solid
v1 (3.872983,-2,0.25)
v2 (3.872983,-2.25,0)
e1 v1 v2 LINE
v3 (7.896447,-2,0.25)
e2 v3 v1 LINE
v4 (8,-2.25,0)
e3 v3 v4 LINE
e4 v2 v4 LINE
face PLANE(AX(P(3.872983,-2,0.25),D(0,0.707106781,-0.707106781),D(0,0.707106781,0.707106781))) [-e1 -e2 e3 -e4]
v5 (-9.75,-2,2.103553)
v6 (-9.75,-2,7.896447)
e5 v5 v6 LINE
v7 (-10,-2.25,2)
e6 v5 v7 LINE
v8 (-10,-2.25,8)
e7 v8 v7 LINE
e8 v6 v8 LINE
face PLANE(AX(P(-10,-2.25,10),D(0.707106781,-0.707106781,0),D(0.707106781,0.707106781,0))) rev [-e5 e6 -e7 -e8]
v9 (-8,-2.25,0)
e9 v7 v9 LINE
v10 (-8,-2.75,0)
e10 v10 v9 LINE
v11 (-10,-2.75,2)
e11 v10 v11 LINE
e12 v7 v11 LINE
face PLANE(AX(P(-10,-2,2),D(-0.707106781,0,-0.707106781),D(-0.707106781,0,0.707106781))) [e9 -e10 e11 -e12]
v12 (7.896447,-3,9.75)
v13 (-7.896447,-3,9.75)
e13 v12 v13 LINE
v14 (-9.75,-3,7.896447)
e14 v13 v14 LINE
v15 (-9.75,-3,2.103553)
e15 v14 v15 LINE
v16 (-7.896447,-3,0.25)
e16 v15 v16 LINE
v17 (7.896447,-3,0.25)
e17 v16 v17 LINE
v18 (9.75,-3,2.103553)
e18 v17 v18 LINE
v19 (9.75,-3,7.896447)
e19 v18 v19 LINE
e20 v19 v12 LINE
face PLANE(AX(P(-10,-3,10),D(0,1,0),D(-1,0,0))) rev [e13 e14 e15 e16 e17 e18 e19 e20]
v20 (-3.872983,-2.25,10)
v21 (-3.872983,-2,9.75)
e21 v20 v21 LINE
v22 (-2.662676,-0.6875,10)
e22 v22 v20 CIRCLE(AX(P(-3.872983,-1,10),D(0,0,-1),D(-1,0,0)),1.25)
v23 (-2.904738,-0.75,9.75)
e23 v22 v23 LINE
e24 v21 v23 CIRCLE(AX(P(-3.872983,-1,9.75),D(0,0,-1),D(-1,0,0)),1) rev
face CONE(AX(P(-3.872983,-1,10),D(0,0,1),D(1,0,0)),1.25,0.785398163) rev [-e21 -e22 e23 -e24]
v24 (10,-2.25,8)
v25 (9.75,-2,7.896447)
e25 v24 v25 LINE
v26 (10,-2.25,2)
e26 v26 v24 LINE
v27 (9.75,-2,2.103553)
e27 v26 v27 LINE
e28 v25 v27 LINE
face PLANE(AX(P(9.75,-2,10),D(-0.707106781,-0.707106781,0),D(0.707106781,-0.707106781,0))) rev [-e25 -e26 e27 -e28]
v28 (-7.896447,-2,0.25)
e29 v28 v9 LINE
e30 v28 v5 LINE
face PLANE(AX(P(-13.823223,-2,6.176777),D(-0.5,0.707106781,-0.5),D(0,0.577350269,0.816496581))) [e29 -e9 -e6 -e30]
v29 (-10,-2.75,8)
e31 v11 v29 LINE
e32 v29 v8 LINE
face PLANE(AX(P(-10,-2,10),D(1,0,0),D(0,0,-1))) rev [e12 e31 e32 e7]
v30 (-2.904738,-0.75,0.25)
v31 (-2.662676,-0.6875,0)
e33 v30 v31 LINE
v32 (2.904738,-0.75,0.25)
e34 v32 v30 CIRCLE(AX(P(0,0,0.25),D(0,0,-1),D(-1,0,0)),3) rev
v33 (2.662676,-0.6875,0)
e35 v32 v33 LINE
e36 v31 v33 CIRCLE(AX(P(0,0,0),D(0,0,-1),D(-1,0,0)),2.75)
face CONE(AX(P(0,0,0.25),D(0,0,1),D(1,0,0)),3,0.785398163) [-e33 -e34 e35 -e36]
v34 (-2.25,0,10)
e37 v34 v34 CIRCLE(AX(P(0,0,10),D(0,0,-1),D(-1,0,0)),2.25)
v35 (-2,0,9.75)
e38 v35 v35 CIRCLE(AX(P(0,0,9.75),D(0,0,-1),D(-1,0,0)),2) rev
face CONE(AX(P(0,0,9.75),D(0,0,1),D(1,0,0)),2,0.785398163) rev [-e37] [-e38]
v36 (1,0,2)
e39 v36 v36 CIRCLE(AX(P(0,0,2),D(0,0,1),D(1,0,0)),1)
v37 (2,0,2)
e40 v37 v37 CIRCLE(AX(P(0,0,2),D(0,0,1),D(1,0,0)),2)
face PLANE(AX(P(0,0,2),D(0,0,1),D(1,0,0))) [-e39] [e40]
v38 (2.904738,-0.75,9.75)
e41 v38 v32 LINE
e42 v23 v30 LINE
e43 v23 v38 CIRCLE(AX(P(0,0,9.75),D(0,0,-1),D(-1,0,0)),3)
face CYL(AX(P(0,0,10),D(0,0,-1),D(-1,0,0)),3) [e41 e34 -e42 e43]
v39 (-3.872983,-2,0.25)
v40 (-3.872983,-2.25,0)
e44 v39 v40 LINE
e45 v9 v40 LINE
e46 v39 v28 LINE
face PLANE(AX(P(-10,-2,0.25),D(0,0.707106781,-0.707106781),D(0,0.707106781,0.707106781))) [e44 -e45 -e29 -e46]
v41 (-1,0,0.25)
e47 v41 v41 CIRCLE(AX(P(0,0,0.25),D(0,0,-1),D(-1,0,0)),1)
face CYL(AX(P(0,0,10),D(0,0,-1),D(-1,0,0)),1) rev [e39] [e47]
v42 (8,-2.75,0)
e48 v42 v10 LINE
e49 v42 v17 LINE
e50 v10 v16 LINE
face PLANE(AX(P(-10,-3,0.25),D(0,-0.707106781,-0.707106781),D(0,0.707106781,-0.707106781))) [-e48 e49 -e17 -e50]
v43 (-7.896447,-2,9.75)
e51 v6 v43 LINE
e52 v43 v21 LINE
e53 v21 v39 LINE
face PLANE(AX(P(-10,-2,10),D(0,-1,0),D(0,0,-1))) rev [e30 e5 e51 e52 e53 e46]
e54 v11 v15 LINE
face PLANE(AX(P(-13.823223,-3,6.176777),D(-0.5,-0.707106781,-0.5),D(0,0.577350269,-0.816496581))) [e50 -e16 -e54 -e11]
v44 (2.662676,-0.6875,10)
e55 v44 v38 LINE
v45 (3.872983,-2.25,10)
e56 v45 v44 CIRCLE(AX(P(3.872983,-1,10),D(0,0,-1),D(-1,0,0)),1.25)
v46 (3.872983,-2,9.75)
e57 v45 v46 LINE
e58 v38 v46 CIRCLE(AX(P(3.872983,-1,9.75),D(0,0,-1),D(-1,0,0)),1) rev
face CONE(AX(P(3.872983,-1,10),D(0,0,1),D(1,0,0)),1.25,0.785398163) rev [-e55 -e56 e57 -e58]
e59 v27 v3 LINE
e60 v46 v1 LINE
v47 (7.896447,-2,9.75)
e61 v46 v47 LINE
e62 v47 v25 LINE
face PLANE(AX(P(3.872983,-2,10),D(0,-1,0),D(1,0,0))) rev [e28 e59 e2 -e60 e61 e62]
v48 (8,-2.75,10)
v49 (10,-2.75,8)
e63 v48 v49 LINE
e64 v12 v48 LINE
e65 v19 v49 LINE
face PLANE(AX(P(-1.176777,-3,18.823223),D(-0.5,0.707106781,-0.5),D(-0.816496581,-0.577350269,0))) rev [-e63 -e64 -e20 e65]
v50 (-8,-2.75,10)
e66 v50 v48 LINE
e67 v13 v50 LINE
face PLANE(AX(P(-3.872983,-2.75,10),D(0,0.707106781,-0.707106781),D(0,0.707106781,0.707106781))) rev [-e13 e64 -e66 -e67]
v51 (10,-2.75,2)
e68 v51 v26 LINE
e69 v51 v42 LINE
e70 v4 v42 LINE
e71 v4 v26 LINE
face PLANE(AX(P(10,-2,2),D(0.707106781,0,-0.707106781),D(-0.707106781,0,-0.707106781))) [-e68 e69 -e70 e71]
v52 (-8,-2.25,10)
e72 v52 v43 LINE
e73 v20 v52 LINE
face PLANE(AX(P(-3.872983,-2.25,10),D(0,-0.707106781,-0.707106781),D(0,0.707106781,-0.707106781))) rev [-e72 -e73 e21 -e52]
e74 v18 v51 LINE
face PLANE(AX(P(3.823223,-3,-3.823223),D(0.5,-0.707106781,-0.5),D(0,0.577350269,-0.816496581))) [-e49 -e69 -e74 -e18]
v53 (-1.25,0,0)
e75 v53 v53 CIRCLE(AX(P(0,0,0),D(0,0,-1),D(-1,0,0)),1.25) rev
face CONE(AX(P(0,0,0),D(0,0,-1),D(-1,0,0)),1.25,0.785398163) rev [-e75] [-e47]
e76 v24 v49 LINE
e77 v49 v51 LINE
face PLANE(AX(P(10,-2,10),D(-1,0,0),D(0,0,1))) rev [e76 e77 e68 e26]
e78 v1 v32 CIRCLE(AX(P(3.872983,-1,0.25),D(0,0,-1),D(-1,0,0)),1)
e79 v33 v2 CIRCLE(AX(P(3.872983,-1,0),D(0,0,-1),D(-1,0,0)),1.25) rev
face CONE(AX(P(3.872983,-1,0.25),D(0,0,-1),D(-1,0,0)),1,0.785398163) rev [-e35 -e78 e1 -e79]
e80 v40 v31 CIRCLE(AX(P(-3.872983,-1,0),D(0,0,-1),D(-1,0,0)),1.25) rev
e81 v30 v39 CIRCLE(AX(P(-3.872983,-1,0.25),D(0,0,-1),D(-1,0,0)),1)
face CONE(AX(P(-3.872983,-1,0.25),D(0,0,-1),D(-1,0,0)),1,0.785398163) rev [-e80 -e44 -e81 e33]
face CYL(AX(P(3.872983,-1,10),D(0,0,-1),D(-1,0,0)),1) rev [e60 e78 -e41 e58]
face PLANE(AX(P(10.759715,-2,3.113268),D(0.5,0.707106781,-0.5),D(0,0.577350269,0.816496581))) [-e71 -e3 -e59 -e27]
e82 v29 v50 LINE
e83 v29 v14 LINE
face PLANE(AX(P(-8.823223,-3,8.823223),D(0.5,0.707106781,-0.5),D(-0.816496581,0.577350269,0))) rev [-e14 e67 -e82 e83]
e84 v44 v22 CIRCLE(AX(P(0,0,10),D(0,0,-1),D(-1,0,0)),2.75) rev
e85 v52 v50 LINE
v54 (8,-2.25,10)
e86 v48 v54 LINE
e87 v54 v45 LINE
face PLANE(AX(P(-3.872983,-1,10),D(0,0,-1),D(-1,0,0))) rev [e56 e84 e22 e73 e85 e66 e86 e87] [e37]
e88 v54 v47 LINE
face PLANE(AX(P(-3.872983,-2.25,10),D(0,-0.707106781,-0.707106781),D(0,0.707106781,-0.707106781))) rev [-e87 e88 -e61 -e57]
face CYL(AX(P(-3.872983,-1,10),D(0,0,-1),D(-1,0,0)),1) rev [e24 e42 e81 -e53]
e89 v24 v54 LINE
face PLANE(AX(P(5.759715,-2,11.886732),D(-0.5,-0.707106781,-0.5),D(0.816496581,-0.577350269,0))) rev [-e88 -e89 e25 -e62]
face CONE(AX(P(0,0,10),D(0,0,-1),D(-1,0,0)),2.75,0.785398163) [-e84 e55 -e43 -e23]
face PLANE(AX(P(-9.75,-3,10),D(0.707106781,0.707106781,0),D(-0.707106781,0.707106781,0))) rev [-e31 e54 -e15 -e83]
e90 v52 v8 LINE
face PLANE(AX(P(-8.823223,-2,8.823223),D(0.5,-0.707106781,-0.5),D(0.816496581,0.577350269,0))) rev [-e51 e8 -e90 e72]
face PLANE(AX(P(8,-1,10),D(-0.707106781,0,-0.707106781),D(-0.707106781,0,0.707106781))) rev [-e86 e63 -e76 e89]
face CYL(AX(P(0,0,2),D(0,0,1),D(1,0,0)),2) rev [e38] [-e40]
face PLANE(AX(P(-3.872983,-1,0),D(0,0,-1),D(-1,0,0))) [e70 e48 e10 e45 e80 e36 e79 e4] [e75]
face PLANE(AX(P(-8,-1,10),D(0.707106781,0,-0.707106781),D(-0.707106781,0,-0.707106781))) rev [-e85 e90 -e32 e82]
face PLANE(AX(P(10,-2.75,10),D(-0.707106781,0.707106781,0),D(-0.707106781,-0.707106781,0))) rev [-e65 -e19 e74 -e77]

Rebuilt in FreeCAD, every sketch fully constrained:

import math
import FreeCAD as App
import Part
import Sketcher
Q = App.Units.Quantity


def edges_at(feature, points):
    """Names of the edges that pass closest to the given points."""
    edges = feature.Shape.Edges
    near = lambda p: min(range(len(edges)), key=lambda i: edges[i].distToShape(Part.Vertex(*p))[0])
    return sorted({f"Edge{near(p) + 1}" for p in points})

doc = App.newDocument("Part")
body = doc.addObject("PartDesign::Body", "Body")

# Sketch on XY plane
sketch1 = body.newObject("Sketcher::SketchObject", "Sketch")
sketch1.AttachmentSupport = (doc.getObject("XY_Plane"), [""])
sketch1.MapMode = "FlatFace"
sketch1.addGeometry([
    Part.LineSegment(App.Vector(-10, -3, 0), App.Vector(10, -3, 0)),  # 0
    Part.LineSegment(App.Vector(10, -3, 0), App.Vector(10, -2, 0)),  # 1
    Part.LineSegment(App.Vector(10, -2, 0), App.Vector(3.9, -2, 0)),  # 2
    Part.ArcOfCircle(Part.Circle(App.Vector(3.9, -1, 0), App.Vector(0, 0, 1), 1), math.radians(166), math.radians(270)),  # 3
    Part.ArcOfCircle(Part.Circle(App.Vector(0, 0, 0), App.Vector(0, 0, 1), 3), math.radians(-14), math.radians(194)),  # 4
    Part.ArcOfCircle(Part.Circle(App.Vector(-3.9, -1, 0), App.Vector(0, 0, 1), 1), math.radians(-90), math.radians(14)),  # 5
    Part.LineSegment(App.Vector(-3.9, -2, 0), App.Vector(-10, -2, 0)),  # 6
    Part.LineSegment(App.Vector(-10, -2, 0), App.Vector(-10, -3, 0)),  # 7
    Part.Circle(App.Vector(0, 0, 0), App.Vector(0, 0, 1), 1),  # 8
], False)
sketch1.addConstraint([
    Sketcher.Constraint("Coincident", 0, 2, 1, 1),
    Sketcher.Constraint("Coincident", 1, 2, 2, 1),
    Sketcher.Constraint("Tangent", 2, 2, 3, 2),
    Sketcher.Constraint("Tangent", 3, 1, 4, 1),
    Sketcher.Constraint("Tangent", 4, 2, 5, 2),
    Sketcher.Constraint("Tangent", 5, 1, 6, 1),
    Sketcher.Constraint("Coincident", 6, 2, 7, 1),
    Sketcher.Constraint("Coincident", 7, 2, 0, 1),
    Sketcher.Constraint("Horizontal", 0),
    Sketcher.Constraint("Vertical", 1),
    Sketcher.Constraint("Horizontal", 2),
    Sketcher.Constraint("Horizontal", 6),
    Sketcher.Constraint("Vertical", 7),
    Sketcher.Constraint("Coincident", 4, 3, -1, 1),
    Sketcher.Constraint("Coincident", 8, 3, -1, 1),
    Sketcher.Constraint("Equal", 3, 5),
    Sketcher.Constraint("Equal", 5, 8),
    Sketcher.Constraint("Symmetric", 1, 2, 6, 2, -2),
    Sketcher.Constraint("Diameter", 8, Q("2 mm")),
    Sketcher.Constraint("Radius", 4, Q("3 mm")),
    Sketcher.Constraint("DistanceX", 0, 1, 0, 2, Q("20 mm")),
    Sketcher.Constraint("DistanceY", 1, 1, 1, 2, Q("1 mm")),
    Sketcher.Constraint("DistanceY", 3, 3, -1, 1, Q("1 mm")),
])
pad1 = body.newObject("PartDesign::Pad", "Pad")
pad1.Profile = sketch1
pad1.Length = 10

# Sketch on XY plane
sketch2 = body.newObject("Sketcher::SketchObject", "Sketch001")
sketch2.AttachmentSupport = (doc.getObject("XY_Plane"), [""])
sketch2.MapMode = "FlatFace"
sketch2.AttachmentOffset = App.Placement(App.Vector(0, 0, 10), App.Rotation())
sketch2.addGeometry(Part.Circle(App.Vector(0, 0, 0), App.Vector(0, 0, 1), 2), False)
sketch2.addConstraint([
    Sketcher.Constraint("Coincident", 0, 3, -1, 1),
    Sketcher.Constraint("Diameter", 0, Q("4 mm")),
])
pocket1 = body.newObject("PartDesign::Pocket", "Pocket")
pocket1.Profile = sketch2
pocket1.Length = 8
doc.recompute()

chamfer = body.newObject("PartDesign::Chamfer", "Chamfer")
chamfer.Base = (pocket1, edges_at(pocket1, [
    (-10, -2.5, 10),
    (10, -2.5, 10),
    (10, -2.5, 0),
    (-10, -2.5, 0),
]))
chamfer.Size = 2
doc.recompute()

chamfer2 = body.newObject("PartDesign::Chamfer", "Chamfer001")
chamfer2.Base = (chamfer, edges_at(chamfer, [
    (-5.936, -2, 0),
    (-3.082, -1.612, 0),
    (-1, 0, 0),
    (3.082, -1.612, 10),
    (0, 3, 10),
    (-2, 0, 10),
    (0, -3, 10),
    (5.936, -2, 10),
    (0, -3, 0),
    (10, -3, 5),
    (-10, -3, 5),
    (9, -3, 9),
    (9, -3, 1),
    (-9, -3, 1),
    (-9, -3, 9),
    (-10, -2, 5),
    (-3.082, -1.612, 10),
    (-9, -2, 1),
    (-9, -2, 9),
    (5.936, -2, 0),
    (10, -2, 5),
    (9, -2, 9),
    (9, -2, 1),
    (-5.936, -2, 10),
    (0, 3, 0),
    (3.082, -1.612, 0),
]))
chamfer2.Size = 0.25

doc.recompute()
